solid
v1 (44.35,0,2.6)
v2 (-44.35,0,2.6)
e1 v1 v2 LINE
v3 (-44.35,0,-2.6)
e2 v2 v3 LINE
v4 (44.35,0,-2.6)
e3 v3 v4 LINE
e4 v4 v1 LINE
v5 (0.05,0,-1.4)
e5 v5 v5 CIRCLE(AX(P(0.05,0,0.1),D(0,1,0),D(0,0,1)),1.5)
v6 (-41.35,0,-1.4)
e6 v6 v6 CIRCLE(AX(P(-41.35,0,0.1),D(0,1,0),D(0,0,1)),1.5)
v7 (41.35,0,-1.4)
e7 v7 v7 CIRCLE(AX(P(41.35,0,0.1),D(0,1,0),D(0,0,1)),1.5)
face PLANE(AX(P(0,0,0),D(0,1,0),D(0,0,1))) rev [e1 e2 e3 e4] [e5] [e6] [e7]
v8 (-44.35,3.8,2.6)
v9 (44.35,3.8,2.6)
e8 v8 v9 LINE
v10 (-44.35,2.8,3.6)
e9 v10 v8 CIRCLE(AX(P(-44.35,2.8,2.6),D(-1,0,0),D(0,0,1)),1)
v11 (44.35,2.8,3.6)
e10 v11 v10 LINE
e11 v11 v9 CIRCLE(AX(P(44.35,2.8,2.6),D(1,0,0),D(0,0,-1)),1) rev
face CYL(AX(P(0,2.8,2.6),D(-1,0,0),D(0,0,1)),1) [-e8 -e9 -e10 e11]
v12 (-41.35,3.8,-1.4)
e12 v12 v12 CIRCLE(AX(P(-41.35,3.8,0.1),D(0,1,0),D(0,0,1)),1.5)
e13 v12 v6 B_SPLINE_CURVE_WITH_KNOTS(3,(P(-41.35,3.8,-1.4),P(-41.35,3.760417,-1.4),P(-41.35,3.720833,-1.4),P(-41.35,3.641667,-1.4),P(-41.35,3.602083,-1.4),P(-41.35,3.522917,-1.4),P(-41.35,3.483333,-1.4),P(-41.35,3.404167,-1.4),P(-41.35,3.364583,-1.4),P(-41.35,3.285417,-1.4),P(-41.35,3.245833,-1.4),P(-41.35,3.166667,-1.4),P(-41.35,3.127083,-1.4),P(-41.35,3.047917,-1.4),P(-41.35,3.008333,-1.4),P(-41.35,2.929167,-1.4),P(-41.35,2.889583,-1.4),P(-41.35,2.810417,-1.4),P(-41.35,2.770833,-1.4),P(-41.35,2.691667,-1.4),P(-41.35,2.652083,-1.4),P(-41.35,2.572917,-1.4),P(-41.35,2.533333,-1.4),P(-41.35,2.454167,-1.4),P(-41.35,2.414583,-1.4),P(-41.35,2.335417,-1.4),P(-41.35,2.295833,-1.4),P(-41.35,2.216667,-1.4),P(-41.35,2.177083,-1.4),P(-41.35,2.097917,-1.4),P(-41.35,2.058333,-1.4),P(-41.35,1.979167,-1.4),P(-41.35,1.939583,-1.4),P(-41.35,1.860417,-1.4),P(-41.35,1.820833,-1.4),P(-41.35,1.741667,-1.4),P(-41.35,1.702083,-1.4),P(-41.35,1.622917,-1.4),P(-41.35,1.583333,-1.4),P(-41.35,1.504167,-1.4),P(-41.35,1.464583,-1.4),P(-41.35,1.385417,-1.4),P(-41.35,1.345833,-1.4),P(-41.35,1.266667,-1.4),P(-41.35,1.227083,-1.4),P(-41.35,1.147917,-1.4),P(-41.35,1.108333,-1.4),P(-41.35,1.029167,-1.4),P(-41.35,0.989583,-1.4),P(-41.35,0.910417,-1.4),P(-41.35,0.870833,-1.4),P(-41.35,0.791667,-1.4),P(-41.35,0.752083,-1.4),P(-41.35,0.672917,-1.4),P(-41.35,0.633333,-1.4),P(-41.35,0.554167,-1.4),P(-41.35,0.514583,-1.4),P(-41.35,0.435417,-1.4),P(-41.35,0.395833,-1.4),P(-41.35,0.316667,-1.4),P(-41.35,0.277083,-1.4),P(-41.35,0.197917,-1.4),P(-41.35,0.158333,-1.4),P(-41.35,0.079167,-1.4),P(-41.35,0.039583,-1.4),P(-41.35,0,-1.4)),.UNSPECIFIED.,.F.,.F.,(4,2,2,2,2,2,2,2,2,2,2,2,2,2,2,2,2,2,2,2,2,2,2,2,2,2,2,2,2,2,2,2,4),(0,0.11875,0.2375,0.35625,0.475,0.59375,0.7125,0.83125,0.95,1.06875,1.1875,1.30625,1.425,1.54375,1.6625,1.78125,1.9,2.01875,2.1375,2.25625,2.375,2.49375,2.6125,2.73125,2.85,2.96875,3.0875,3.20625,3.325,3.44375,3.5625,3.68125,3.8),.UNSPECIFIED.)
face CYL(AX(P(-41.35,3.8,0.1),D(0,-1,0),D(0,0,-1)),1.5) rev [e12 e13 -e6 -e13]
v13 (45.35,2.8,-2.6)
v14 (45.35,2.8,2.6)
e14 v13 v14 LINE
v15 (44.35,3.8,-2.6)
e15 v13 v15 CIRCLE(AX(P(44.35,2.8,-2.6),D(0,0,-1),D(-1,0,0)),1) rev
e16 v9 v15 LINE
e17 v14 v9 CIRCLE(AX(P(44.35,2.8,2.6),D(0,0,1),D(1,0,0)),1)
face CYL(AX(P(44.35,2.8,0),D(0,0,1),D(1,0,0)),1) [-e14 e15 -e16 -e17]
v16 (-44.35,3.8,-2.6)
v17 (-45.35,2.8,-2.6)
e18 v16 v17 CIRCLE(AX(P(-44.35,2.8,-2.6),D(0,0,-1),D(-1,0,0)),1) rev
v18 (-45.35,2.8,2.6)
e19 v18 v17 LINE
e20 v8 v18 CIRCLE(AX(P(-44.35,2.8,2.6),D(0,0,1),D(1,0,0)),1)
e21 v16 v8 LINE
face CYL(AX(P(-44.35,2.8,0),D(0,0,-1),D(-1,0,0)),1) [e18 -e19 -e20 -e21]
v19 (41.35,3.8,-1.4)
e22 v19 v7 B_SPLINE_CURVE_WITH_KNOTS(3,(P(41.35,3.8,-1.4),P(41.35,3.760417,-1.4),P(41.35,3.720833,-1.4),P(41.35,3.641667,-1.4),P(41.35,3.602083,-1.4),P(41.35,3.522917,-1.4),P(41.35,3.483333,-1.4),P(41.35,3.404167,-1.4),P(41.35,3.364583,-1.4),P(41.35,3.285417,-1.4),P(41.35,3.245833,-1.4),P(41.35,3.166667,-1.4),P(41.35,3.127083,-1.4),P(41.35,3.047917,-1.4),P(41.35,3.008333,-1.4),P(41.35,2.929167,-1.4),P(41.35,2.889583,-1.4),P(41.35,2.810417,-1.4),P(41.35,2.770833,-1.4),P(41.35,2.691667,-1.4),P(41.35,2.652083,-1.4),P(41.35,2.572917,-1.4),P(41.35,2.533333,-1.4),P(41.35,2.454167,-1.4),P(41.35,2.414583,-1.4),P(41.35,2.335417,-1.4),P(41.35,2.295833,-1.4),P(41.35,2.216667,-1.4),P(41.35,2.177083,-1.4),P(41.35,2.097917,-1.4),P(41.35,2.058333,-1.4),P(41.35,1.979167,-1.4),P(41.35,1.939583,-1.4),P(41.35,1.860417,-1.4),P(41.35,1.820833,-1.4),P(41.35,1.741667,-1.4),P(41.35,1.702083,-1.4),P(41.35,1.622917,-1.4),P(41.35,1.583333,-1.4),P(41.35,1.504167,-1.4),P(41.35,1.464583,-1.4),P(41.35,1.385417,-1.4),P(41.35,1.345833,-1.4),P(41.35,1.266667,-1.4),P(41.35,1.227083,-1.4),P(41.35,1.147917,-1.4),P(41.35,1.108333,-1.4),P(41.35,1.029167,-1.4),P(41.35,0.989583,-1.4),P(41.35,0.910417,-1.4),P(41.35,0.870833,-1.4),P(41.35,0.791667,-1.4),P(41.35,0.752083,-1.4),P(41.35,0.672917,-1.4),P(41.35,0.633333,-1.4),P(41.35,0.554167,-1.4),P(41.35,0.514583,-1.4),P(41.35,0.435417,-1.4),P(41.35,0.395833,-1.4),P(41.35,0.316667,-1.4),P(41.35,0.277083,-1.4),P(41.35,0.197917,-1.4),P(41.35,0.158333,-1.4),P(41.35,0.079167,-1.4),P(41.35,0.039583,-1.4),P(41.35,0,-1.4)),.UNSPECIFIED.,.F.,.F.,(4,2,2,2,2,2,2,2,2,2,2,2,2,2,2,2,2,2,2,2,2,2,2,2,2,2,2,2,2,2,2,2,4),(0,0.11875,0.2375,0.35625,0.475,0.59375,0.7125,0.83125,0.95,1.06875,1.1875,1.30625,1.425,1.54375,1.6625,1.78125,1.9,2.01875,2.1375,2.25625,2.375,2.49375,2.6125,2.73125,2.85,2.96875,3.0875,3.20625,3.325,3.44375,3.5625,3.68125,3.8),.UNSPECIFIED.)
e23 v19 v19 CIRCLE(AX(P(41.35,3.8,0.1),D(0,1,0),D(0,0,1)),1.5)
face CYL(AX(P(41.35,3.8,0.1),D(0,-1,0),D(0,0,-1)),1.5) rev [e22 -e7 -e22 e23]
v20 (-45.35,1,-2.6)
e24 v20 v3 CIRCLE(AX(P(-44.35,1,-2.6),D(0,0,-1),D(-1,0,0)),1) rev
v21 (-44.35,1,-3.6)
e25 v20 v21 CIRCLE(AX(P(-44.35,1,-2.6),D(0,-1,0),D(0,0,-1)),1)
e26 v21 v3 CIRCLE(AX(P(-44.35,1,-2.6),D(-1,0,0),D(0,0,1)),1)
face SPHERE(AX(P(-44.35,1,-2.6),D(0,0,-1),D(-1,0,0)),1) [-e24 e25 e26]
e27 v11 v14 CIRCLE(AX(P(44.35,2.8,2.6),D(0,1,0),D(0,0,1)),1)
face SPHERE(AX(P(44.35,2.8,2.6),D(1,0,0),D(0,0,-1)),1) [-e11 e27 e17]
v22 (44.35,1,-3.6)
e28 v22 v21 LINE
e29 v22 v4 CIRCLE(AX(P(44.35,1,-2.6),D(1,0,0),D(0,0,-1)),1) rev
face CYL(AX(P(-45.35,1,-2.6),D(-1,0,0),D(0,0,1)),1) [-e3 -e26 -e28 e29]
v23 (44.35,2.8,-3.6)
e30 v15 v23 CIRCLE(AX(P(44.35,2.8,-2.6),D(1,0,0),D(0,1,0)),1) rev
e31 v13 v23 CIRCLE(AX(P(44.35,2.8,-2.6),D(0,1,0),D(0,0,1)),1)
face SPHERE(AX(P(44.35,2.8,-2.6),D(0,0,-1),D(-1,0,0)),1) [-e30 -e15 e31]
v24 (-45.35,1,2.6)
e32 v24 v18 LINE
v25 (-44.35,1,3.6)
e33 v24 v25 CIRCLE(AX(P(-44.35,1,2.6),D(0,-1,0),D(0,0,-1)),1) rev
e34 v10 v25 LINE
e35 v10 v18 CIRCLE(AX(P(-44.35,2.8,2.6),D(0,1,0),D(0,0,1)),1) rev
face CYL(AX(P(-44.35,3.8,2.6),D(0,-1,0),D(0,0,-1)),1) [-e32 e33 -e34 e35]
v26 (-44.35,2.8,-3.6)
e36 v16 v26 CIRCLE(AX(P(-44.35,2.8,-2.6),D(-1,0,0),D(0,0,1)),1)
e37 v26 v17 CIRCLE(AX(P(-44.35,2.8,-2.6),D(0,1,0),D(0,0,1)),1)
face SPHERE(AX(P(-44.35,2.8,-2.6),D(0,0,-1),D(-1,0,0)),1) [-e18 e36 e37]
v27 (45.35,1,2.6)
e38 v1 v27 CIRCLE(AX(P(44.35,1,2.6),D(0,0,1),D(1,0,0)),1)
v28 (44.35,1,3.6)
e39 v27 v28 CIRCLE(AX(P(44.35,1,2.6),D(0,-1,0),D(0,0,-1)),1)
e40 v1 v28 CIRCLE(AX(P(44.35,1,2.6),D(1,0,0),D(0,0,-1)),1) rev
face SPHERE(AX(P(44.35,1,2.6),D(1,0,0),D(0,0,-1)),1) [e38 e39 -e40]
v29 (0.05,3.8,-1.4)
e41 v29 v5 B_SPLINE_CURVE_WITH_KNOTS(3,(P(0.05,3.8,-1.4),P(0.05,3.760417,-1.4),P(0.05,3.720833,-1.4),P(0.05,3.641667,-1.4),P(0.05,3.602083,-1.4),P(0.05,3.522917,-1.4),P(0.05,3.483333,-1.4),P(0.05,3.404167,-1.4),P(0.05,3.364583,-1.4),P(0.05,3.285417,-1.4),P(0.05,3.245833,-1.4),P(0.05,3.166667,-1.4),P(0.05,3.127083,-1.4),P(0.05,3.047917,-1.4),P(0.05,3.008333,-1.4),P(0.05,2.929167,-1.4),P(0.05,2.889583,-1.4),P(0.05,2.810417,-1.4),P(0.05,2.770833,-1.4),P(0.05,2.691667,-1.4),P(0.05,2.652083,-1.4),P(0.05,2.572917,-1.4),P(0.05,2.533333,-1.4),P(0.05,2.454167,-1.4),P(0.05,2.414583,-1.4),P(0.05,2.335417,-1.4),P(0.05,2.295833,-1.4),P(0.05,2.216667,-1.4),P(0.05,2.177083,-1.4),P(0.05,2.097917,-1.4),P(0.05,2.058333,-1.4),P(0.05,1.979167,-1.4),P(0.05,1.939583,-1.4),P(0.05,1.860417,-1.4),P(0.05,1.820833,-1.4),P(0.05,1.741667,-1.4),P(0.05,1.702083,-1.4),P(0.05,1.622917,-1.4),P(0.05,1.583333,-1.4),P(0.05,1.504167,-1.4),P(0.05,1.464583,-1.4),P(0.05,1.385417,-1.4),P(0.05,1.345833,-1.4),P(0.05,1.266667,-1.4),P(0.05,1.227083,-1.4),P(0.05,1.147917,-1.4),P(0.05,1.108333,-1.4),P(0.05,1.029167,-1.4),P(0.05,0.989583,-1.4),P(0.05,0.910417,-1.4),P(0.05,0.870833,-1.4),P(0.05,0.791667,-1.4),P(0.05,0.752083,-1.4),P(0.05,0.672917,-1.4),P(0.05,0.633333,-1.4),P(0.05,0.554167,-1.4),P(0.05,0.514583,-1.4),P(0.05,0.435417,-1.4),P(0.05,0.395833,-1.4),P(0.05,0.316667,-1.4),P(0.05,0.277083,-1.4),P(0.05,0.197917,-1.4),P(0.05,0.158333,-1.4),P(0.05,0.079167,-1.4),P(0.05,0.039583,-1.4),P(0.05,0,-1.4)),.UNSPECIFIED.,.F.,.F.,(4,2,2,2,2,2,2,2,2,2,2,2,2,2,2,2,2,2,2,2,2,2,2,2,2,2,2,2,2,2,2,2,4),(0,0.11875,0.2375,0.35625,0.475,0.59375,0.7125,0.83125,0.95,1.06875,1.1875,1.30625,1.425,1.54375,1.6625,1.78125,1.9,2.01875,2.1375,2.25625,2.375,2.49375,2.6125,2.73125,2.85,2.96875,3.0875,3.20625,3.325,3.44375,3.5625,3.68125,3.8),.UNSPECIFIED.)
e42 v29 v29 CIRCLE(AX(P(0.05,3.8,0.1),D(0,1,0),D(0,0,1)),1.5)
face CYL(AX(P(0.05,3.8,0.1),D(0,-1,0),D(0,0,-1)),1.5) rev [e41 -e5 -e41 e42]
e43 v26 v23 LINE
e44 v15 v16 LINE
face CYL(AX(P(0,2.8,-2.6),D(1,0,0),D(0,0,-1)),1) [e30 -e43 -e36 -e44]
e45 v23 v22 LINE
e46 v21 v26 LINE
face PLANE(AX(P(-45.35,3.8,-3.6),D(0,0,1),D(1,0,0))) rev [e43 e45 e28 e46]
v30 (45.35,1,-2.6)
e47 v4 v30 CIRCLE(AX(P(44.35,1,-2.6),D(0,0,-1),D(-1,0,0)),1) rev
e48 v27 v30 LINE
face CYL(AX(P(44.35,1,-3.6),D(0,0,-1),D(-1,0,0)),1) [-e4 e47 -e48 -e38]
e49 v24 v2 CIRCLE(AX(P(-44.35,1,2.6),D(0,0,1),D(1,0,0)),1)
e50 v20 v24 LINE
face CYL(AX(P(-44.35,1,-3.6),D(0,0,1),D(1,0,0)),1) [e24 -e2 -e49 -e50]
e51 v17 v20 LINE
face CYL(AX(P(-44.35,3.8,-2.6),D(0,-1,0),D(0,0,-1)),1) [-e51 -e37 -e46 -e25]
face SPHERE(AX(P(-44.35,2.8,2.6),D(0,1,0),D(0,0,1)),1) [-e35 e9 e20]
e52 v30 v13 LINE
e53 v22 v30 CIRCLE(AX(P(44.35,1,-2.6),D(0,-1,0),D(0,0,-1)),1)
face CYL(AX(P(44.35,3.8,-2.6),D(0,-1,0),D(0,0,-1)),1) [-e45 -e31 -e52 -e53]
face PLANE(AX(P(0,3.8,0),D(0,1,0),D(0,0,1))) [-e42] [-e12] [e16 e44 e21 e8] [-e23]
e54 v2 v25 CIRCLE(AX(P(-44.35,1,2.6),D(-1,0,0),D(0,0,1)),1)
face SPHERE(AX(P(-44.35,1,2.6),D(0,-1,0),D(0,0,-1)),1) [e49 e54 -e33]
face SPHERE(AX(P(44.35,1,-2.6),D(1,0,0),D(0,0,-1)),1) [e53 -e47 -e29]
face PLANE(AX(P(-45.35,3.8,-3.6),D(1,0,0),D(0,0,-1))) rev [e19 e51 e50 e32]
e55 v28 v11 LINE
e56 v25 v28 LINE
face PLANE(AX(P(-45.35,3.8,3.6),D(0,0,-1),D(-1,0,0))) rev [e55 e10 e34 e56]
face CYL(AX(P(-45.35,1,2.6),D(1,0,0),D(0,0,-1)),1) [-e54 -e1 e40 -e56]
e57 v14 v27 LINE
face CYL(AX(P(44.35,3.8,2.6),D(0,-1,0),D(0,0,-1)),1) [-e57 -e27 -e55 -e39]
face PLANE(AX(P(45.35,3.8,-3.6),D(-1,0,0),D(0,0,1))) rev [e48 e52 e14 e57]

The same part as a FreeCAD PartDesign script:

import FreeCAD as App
import Part
import Sketcher
Q = App.Units.Quantity


def edges_at(feature, points):
    """Names of the edges that pass closest to the given points."""
    edges = feature.Shape.Edges
    near = lambda p: min(range(len(edges)), key=lambda i: edges[i].distToShape(Part.Vertex(*p))[0])
    return sorted({f"Edge{near(p) + 1}" for p in points})


def add_polygon(sketch, points):
    """Adds a closed chain of lines whose ends are joined by coincident constraints."""
    first, n = sketch.GeometryCount, len(points)
    for a, b in zip(points, points[1:] + points[:1]):
        sketch.addGeometry(Part.LineSegment(App.Vector(*a, 0), App.Vector(*b, 0)), False)
    for i in range(n):
        sketch.addConstraint(Sketcher.Constraint("Coincident", first + i, 2, first + (i + 1) % n, 1))

doc = App.newDocument("Part")
body = doc.addObject("PartDesign::Body", "Body")

sketch1 = doc.addObject("Sketcher::SketchObject", "Sketch")
body.addObject(sketch1)
sketch1.AttachmentSupport = (doc.XZ_Plane, [""])
sketch1.MapMode = "FlatFace"
add_polygon(sketch1, [(-45.4, -3.6), (-45.4, 3.6), (45.4, 3.6), (45.4, -3.6)])
sketch1.addGeometry(Part.Circle(App.Vector(-41.4, 0.1, 0), App.Vector(0, 0, 1), 1.5), False)
sketch1.addGeometry(Part.Circle(App.Vector(0.1, 0.1, 0), App.Vector(0, 0, 1), 1.5), False)
sketch1.addGeometry(Part.Circle(App.Vector(41.4, 0.1, 0), App.Vector(0, 0, 1), 1.5), False)
sketch1.addConstraint(Sketcher.Constraint("Vertical", 0))
sketch1.addConstraint(Sketcher.Constraint("Horizontal", 1))
sketch1.addConstraint(Sketcher.Constraint("Vertical", 2))
sketch1.addConstraint(Sketcher.Constraint("Horizontal", 3))
sketch1.addConstraint(Sketcher.Constraint("Equal", 4, 5))
sketch1.addConstraint(Sketcher.Constraint("Equal", 5, 6))
sketch1.addConstraint(Sketcher.Constraint("Symmetric", 0, 2, 2, 2, -1, 1))
sketch1.addConstraint(Sketcher.Constraint("Symmetric", 4, 3, 6, 3, -2))
sketch1.addConstraint(Sketcher.Constraint("Horizontal", 4, 3, 5, 3))
sketch1.addConstraint(Sketcher.Constraint("Diameter", 4, Q("3 mm")))
sketch1.addConstraint(Sketcher.Constraint("DistanceX", 1, 1, 1, 2, Q("90.7 mm")))
sketch1.addConstraint(Sketcher.Constraint("DistanceY", 0, 1, 0, 2, Q("7.2 mm")))
sketch1.addConstraint(Sketcher.Constraint("DistanceX", 0, 2, 4, 3, Q("4 mm")))
sketch1.addConstraint(Sketcher.Constraint("DistanceY", -1, 1, 4, 3, Q("0.1 mm")))
sketch1.addConstraint(Sketcher.Constraint("DistanceX", 4, 3, 5, 3, Q("41.4 mm")))
pad1 = doc.addObject("PartDesign::Pad", "Pad")
body.addObject(pad1)
pad1.Profile = sketch1
pad1.Length = 3.8
pad1.Reversed = True
doc.recompute()

fillet = doc.addObject("PartDesign::Fillet", "Fillet")
body.addObject(fillet)
fillet.Base = (pad1, edges_at(pad1, [
    (45.35, 3.8, 0),
    (0, 3.8, -3.6),
    (-45.35, 3.8, 0),
    (0, 0, -3.6),
    (45.35, 0, 0),
    (0, 0, 3.6),
    (-45.35, 0, 0),
    (-45.35, 1.9, -3.6),
    (45.35, 1.9, -3.6),
    (45.35, 1.9, 3.6),
    (-45.35, 1.9, 3.6),
    (0, 3.8, 3.6),
]))
fillet.Radius = 1

doc.recompute()
